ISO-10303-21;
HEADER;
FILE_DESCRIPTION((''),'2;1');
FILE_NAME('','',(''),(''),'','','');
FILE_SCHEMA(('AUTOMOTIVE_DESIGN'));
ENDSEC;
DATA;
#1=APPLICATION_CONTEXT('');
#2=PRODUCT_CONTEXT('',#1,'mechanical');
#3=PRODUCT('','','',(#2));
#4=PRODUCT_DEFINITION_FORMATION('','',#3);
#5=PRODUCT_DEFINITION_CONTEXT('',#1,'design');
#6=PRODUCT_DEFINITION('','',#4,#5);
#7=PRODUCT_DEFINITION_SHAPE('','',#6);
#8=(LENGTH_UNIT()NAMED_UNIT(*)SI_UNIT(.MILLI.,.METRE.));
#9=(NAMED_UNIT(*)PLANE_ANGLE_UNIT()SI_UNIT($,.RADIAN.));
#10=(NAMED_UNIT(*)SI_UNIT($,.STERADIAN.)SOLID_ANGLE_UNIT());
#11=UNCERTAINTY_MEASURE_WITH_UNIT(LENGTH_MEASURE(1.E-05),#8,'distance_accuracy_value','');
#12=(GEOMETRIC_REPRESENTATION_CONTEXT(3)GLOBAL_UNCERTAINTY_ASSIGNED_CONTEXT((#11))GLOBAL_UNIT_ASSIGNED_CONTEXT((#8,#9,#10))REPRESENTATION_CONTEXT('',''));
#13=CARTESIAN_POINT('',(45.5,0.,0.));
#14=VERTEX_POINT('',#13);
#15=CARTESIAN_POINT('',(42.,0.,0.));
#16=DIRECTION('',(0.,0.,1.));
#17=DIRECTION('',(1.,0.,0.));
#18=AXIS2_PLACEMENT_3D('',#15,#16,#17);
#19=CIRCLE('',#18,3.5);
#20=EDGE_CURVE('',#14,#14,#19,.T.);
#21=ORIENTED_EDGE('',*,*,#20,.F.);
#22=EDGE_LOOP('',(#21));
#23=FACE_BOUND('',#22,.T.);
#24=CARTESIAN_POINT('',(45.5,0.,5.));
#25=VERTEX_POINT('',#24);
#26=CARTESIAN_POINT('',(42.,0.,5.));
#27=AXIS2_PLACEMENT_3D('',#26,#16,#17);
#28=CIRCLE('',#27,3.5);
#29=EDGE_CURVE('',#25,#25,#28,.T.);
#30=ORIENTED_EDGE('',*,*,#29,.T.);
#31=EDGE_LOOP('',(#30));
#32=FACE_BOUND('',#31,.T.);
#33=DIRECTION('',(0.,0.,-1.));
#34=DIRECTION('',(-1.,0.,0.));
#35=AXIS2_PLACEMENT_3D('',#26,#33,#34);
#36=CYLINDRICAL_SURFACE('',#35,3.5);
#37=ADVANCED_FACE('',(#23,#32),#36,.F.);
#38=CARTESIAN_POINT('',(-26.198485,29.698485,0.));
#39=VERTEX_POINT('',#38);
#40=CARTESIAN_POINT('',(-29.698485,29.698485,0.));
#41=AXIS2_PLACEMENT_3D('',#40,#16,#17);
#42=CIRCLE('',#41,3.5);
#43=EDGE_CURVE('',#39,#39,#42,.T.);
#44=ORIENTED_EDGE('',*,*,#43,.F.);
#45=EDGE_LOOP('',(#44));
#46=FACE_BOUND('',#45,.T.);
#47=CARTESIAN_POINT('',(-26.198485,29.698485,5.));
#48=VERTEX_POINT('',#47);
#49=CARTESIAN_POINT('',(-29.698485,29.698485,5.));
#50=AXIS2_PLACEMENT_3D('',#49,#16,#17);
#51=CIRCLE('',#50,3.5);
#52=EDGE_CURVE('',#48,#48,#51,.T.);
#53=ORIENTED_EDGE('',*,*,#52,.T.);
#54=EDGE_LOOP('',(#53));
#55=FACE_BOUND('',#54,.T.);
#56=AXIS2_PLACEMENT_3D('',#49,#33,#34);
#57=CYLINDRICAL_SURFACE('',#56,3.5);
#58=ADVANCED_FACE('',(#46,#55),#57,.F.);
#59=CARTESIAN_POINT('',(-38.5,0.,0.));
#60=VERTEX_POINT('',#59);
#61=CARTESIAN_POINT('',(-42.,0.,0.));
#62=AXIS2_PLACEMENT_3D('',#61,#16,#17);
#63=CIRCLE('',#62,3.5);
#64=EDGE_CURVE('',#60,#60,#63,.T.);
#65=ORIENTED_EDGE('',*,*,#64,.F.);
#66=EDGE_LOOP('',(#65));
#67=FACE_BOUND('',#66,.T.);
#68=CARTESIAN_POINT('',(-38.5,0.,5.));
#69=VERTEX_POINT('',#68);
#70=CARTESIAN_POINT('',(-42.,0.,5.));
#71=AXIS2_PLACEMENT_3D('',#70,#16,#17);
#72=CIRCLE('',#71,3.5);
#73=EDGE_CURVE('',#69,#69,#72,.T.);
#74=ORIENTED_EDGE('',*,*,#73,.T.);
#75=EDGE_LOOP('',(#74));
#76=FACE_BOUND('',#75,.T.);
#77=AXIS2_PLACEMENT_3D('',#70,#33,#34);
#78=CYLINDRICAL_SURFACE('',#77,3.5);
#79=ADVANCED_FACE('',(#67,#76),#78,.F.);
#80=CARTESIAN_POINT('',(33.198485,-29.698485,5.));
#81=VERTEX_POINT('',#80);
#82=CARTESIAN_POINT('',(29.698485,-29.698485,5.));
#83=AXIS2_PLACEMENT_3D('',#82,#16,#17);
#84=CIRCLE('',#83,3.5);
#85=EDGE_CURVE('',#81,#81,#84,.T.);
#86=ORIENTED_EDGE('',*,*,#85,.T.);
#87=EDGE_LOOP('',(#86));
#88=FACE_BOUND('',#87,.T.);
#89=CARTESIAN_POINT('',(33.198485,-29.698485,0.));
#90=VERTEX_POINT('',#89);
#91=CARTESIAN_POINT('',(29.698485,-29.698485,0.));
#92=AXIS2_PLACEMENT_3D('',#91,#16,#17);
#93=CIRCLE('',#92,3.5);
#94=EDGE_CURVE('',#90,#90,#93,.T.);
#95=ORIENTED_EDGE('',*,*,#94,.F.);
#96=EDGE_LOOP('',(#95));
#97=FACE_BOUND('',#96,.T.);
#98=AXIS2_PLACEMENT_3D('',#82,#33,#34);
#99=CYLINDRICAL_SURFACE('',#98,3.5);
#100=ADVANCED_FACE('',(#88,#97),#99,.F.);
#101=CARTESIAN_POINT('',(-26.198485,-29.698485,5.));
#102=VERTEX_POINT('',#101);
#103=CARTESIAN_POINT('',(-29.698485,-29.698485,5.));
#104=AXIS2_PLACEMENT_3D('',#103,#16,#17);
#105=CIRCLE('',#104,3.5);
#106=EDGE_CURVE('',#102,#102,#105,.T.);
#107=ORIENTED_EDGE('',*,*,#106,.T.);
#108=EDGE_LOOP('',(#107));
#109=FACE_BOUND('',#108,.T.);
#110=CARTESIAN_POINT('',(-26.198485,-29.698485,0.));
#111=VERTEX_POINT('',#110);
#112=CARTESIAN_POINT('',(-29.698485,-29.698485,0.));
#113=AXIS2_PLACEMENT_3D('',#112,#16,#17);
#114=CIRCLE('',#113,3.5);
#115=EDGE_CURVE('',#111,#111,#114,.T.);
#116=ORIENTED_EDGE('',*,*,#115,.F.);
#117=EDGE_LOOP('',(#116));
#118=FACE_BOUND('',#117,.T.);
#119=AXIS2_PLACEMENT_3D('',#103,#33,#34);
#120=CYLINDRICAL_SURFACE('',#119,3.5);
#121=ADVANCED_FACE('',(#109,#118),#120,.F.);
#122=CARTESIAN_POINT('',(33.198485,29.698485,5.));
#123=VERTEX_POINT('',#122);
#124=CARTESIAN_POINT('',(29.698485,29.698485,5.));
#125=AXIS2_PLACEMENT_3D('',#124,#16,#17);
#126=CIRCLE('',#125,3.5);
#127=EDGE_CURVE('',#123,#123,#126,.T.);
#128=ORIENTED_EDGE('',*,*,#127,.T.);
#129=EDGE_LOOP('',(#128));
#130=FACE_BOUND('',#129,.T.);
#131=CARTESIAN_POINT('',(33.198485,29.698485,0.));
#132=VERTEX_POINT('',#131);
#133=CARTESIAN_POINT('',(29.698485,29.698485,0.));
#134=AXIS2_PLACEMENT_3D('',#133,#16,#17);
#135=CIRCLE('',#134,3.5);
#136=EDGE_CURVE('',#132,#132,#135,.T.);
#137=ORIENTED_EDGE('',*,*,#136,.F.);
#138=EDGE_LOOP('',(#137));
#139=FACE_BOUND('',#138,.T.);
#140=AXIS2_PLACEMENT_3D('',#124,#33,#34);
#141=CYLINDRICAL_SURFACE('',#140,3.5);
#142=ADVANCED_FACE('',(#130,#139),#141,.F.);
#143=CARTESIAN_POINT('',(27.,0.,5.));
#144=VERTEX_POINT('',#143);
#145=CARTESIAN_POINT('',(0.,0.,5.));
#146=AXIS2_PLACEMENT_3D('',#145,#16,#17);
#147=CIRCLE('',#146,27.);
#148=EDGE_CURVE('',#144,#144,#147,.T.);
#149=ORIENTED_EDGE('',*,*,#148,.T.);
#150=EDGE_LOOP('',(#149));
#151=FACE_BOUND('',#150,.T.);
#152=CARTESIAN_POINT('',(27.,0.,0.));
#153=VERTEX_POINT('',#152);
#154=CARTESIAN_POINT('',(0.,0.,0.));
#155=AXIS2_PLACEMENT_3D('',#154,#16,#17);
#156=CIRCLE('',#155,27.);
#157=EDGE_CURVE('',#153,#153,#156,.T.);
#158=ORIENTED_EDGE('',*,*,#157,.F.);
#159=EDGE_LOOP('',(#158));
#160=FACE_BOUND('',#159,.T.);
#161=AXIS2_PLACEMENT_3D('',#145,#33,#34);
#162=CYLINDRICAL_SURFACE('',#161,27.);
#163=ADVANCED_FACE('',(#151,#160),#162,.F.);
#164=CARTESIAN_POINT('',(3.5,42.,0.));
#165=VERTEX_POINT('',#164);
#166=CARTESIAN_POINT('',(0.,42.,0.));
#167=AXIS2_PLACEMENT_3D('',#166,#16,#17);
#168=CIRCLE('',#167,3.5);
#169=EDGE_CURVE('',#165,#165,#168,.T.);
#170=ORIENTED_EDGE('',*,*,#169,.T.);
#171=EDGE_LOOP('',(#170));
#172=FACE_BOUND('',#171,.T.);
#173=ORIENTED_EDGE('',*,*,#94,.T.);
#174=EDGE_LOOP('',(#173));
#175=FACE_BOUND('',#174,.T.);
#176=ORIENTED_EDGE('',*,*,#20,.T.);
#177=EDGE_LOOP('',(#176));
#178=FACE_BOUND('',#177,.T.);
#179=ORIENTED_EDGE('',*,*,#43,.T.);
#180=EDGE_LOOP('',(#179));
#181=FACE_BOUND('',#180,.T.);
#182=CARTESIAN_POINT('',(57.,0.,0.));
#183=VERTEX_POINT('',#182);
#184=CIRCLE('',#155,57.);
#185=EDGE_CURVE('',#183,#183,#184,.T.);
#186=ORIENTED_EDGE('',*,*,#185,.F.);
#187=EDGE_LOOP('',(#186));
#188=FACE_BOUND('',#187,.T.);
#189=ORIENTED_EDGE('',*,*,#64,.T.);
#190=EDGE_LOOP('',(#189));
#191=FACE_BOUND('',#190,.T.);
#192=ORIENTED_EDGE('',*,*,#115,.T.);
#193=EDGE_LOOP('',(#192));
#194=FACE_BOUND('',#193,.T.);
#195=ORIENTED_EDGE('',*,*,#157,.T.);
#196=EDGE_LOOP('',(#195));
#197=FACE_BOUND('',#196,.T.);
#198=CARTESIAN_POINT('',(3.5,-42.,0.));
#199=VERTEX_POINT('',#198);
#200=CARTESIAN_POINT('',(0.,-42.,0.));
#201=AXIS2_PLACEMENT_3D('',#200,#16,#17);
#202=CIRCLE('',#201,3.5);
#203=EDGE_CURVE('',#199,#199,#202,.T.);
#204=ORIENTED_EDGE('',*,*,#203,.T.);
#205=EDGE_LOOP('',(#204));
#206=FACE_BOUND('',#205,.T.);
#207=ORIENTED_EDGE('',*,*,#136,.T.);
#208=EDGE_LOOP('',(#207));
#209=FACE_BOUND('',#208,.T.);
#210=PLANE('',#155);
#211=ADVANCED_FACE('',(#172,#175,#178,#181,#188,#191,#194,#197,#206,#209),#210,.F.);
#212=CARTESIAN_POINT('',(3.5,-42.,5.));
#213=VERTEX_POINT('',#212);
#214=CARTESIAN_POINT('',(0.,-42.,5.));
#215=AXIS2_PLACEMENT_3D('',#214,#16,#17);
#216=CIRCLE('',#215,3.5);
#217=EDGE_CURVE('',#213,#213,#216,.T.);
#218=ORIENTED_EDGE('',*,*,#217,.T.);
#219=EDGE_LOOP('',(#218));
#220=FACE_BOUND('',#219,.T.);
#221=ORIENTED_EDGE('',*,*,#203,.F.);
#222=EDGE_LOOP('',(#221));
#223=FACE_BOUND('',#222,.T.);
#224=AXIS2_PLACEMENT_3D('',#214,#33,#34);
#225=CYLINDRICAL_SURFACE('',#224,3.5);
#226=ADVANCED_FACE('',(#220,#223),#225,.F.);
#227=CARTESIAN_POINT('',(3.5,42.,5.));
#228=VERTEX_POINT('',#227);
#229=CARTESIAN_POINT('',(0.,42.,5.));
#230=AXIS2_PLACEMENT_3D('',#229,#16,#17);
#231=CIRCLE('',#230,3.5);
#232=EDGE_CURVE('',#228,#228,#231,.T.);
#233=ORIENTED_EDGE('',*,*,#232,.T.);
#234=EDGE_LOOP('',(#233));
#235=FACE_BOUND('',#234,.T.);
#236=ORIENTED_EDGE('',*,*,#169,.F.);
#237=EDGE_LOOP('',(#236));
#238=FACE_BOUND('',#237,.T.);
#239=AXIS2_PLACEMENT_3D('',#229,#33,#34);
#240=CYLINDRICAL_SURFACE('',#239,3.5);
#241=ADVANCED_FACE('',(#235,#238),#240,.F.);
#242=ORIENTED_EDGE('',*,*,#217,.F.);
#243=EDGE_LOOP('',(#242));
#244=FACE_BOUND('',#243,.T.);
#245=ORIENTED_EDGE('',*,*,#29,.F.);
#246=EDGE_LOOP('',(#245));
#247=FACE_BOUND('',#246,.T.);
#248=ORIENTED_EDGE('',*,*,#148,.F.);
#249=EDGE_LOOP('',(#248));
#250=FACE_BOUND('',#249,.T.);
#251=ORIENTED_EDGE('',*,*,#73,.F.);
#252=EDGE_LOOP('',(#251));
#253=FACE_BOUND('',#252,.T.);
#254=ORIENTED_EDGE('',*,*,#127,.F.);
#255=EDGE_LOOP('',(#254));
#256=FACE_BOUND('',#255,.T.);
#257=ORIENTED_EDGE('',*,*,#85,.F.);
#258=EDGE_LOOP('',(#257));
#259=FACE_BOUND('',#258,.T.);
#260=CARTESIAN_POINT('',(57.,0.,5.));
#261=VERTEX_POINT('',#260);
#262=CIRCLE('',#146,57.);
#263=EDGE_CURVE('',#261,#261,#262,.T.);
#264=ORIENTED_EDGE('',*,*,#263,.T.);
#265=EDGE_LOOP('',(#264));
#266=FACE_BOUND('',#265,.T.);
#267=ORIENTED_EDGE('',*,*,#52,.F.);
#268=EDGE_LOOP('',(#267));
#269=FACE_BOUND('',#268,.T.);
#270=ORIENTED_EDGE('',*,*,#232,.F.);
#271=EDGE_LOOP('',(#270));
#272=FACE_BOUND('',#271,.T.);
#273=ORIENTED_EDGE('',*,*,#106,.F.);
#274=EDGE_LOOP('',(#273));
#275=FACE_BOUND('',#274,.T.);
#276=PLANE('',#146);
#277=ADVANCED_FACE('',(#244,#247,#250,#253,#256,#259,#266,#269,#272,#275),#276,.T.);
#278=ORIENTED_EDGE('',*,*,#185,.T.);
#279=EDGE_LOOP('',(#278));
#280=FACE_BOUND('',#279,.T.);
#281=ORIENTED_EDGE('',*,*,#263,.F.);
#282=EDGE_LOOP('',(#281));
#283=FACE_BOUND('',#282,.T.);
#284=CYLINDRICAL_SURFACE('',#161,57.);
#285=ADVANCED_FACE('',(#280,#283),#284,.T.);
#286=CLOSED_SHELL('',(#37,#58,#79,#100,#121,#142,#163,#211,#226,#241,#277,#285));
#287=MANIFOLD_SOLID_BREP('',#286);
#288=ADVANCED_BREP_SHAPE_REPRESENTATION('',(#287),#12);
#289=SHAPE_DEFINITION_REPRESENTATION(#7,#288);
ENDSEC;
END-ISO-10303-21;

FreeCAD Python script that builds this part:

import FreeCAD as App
import Part
import Sketcher
from FreeCAD import Vector

doc = App.newDocument("Part")
body = doc.addObject("PartDesign::Body", "Body")

# Sketch on XY plane
sketch1 = body.newObject("Sketcher::SketchObject", "Sketch")
sketch1.AttachmentSupport = (doc.getObject("XY_Plane"), [""])
sketch1.MapMode = "FlatFace"
sketch1.addGeometry([
    Part.Circle(Vector(0, 0, 0), Vector(0, 0, 1), 57),  # 0
    Part.Circle(Vector(-29.698485, -29.698485, 0), Vector(0, 0, 1), 3.5),  # 1
    Part.Circle(Vector(0, -42, 0), Vector(0, 0, 1), 3.5),  # 2
    Part.Circle(Vector(29.698485, -29.698485, 0), Vector(0, 0, 1), 3.5),  # 3
    Part.Circle(Vector(-42, 0, 0), Vector(0, 0, 1), 3.5),  # 4
    Part.Circle(Vector(-29.698485, 29.698485, 0), Vector(0, 0, 1), 3.5),  # 5
    Part.Circle(Vector(0, 0, 0), Vector(0, 0, 1), 27),  # 6
    Part.Circle(Vector(42, 0, 0), Vector(0, 0, 1), 3.5),  # 7
    Part.Circle(Vector(0, 42, 0), Vector(0, 0, 1), 3.5),  # 8
    Part.Circle(Vector(29.698485, 29.698485, 0), Vector(0, 0, 1), 3.5),  # 9
], False)
sketch1.addConstraint([
    Sketcher.Constraint("Coincident", 0, 3, -1, 1),
    Sketcher.Constraint("Coincident", 6, 3, -1, 1),
    Sketcher.Constraint("Equal", 1, 2),
    Sketcher.Constraint("Equal", 2, 3),
    Sketcher.Constraint("Equal", 3, 4),
    Sketcher.Constraint("Equal", 4, 5),
    Sketcher.Constraint("Equal", 5, 7),
    Sketcher.Constraint("Equal", 7, 8),
    Sketcher.Constraint("Equal", 8, 9),
    Sketcher.Constraint("Symmetric", 3, 3, 5, 3, -1, 1),
    Sketcher.Constraint("Symmetric", 4, 3, 7, 3, -1, 1),
    Sketcher.Constraint("Symmetric", 2, 3, 8, 3, -1, 1),
    Sketcher.Constraint("Symmetric", 1, 3, 9, 3, -1, 1),
    Sketcher.Constraint("Symmetric", 1, 3, 3, 3, -2),
    Sketcher.Constraint("PointOnObject", 2, 3, -2),
    Sketcher.Constraint("PointOnObject", 4, 3, -1),
    Sketcher.Constraint("Diameter", 0, 114.0),
    Sketcher.Constraint("Diameter", 1, 7.0),
    Sketcher.Constraint("Diameter", 6, 54.0),
    Sketcher.Constraint("DistanceY", 2, 3, -1, 1, 42.0),
    Sketcher.Constraint("DistanceX", 4, 3, -1, 1, 42.0),
    Sketcher.Constraint("DistanceX", 1, 3, 3, 3, 59.39697),
    Sketcher.Constraint("DistanceY", 1, 3, 5, 3, 59.39697),
])
pad1 = body.newObject("PartDesign::Pad", "Pad")
pad1.Profile = sketch1
pad1.Length = 5

doc.recompute()
